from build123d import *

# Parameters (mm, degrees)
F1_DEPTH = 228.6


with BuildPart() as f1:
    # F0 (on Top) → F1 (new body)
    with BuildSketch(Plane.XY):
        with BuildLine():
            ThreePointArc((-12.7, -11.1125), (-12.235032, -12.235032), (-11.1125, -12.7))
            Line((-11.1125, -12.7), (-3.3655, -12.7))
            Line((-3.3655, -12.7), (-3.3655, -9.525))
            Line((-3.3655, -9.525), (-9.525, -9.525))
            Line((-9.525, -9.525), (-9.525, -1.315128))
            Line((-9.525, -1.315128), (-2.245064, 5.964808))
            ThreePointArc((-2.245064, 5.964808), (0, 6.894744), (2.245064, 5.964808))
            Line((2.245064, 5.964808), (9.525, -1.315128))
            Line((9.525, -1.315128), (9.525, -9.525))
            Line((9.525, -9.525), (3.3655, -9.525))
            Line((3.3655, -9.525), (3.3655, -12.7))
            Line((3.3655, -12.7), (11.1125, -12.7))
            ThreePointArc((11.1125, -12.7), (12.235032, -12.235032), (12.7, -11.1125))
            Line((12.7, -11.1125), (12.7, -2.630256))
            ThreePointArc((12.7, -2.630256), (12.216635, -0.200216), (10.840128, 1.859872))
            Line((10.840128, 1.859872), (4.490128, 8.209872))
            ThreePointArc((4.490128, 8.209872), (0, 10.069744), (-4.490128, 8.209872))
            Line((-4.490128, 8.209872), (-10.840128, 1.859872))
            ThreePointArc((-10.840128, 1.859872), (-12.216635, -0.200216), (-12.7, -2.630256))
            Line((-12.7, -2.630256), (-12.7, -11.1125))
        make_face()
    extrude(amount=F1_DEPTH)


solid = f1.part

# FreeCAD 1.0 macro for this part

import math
import FreeCAD as App
import Part
import Sketcher
Q = App.Units.Quantity

doc = App.newDocument("Part")
body = doc.addObject("PartDesign::Body", "Body")

# Sketch on XY plane
sketch1 = body.newObject("Sketcher::SketchObject", "Sketch")
sketch1.AttachmentSupport = (doc.getObject("XY_Plane"), [""])
sketch1.MapMode = "FlatFace"
sketch1.addGeometry(Part.ArcOfCircle(Part.Circle(App.Vector(-11.1, -11.1, 0), App.Vector(0, 0, 1), 1.6), math.radians(-180), math.radians(-90)), False)
sketch1.addGeometry(Part.LineSegment(App.Vector(-11.1, -12.7, 0), App.Vector(-3.4, -12.7, 0)), False)
sketch1.addGeometry(Part.LineSegment(App.Vector(-3.4, -12.7, 0), App.Vector(-3.4, -9.5, 0)), False)
sketch1.addGeometry(Part.LineSegment(App.Vector(-3.4, -9.5, 0), App.Vector(-9.5, -9.5, 0)), False)
sketch1.addGeometry(Part.LineSegment(App.Vector(-9.5, -9.5, 0), App.Vector(-9.5, -1.3, 0)), False)
sketch1.addGeometry(Part.LineSegment(App.Vector(-9.5, -1.3, 0), App.Vector(-2.2, 6, 0)), False)
sketch1.addGeometry(Part.ArcOfCircle(Part.Circle(App.Vector(0, 3.7, 0), App.Vector(0, 0, 1), 3.2), math.radians(45), math.radians(135)), False)
sketch1.addGeometry(Part.LineSegment(App.Vector(2.2, 6, 0), App.Vector(9.5, -1.3, 0)), False)
sketch1.addGeometry(Part.LineSegment(App.Vector(9.5, -1.3, 0), App.Vector(9.5, -9.5, 0)), False)
sketch1.addGeometry(Part.LineSegment(App.Vector(9.5, -9.5, 0), App.Vector(3.4, -9.5, 0)), False)
sketch1.addGeometry(Part.LineSegment(App.Vector(3.4, -9.5, 0), App.Vector(3.4, -12.7, 0)), False)
sketch1.addGeometry(Part.LineSegment(App.Vector(3.4, -12.7, 0), App.Vector(11.1, -12.7, 0)), False)
sketch1.addGeometry(Part.ArcOfCircle(Part.Circle(App.Vector(11.1, -11.1, 0), App.Vector(0, 0, 1), 1.6), math.radians(-90), math.radians(0)), False)
sketch1.addGeometry(Part.LineSegment(App.Vector(12.7, -11.1, 0), App.Vector(12.7, -2.6, 0)), False)
sketch1.addGeometry(Part.ArcOfCircle(Part.Circle(App.Vector(6.4, -2.6, 0), App.Vector(0, 0, 1), 6.3), math.radians(0), math.radians(45)), False)
sketch1.addGeometry(Part.LineSegment(App.Vector(10.8, 1.9, 0), App.Vector(4.5, 8.2, 0)), False)
sketch1.addGeometry(Part.ArcOfCircle(Part.Circle(App.Vector(0, 3.7, 0), App.Vector(0, 0, 1), 6.3), math.radians(45), math.radians(135)), False)
sketch1.addGeometry(Part.LineSegment(App.Vector(-4.5, 8.2, 0), App.Vector(-10.8, 1.9, 0)), False)
sketch1.addGeometry(Part.ArcOfCircle(Part.Circle(App.Vector(-6.4, -2.6, 0), App.Vector(0, 0, 1), 6.3), math.radians(135), math.radians(180)), False)
sketch1.addGeometry(Part.LineSegment(App.Vector(-12.7, -2.6, 0), App.Vector(-12.7, -11.1, 0)), False)
sketch1.addConstraint(Sketcher.Constraint("Tangent", 0, 2, 1, 1))
sketch1.addConstraint(Sketcher.Constraint("Coincident", 1, 2, 2, 1))
sketch1.addConstraint(Sketcher.Constraint("Coincident", 2, 2, 3, 1))
sketch1.addConstraint(Sketcher.Constraint("Coincident", 3, 2, 4, 1))
sketch1.addConstraint(Sketcher.Constraint("Coincident", 4, 2, 5, 1))
sketch1.addConstraint(Sketcher.Constraint("Tangent", 5, 2, 6, 2))
sketch1.addConstraint(Sketcher.Constraint("Tangent", 6, 1, 7, 1))
sketch1.addConstraint(Sketcher.Constraint("Coincident", 7, 2, 8, 1))
sketch1.addConstraint(Sketcher.Constraint("Coincident", 8, 2, 9, 1))
sketch1.addConstraint(Sketcher.Constraint("Coincident", 9, 2, 10, 1))
sketch1.addConstraint(Sketcher.Constraint("Coincident", 10, 2, 11, 1))
sketch1.addConstraint(Sketcher.Constraint("Tangent", 11, 2, 12, 1))
sketch1.addConstraint(Sketcher.Constraint("Tangent", 12, 2, 13, 1))
sketch1.addConstraint(Sketcher.Constraint("Tangent", 13, 2, 14, 1))
sketch1.addConstraint(Sketcher.Constraint("Tangent", 14, 2, 15, 1))
sketch1.addConstraint(Sketcher.Constraint("Tangent", 15, 2, 16, 1))
sketch1.addConstraint(Sketcher.Constraint("Tangent", 16, 2, 17, 1))
sketch1.addConstraint(Sketcher.Constraint("Tangent", 17, 2, 18, 1))
sketch1.addConstraint(Sketcher.Constraint("Tangent", 18, 2, 19, 1))
sketch1.addConstraint(Sketcher.Constraint("Tangent", 19, 2, 0, 1))
sketch1.addConstraint(Sketcher.Constraint("Horizontal", 1))
sketch1.addConstraint(Sketcher.Constraint("Vertical", 2))
sketch1.addConstraint(Sketcher.Constraint("Horizontal", 3))
sketch1.addConstraint(Sketcher.Constraint("Vertical", 4))
sketch1.addConstraint(Sketcher.Constraint("Vertical", 8))
sketch1.addConstraint(Sketcher.Constraint("Horizontal", 9))
sketch1.addConstraint(Sketcher.Constraint("Vertical", 10))
sketch1.addConstraint(Sketcher.Constraint("Horizontal", 11))
sketch1.addConstraint(Sketcher.Constraint("Vertical", 13))
sketch1.addConstraint(Sketcher.Constraint("Vertical", 19))
sketch1.addConstraint(Sketcher.Constraint("Coincident", 16, 3, 6, 3))
sketch1.addConstraint(Sketcher.Constraint("Equal", 0, 12))
sketch1.addConstraint(Sketcher.Constraint("Equal", 14, 16))
sketch1.addConstraint(Sketcher.Constraint("Equal", 16, 18))
sketch1.addConstraint(Sketcher.Constraint("Symmetric", 0, 3, 12, 3, -2))
sketch1.addConstraint(Sketcher.Constraint("Symmetric", 5, 2, 6, 1, -2))
sketch1.addConstraint(Sketcher.Constraint("Symmetric", 3, 2, 8, 2, -2))
sketch1.addConstraint(Sketcher.Constraint("Perpendicular", 5, 7))
sketch1.addConstraint(Sketcher.Constraint("Parallel", 7, 15))
sketch1.addConstraint(Sketcher.Constraint("Perpendicular", 15, 17))
sketch1.addConstraint(Sketcher.Constraint("Equal", 3, 9))
sketch1.addConstraint(Sketcher.Constraint("Radius", 14, Q("0.25 in")))
sketch1.addConstraint(Sketcher.Constraint("Radius", 0, Q("0.0625 in")))
sketch1.addConstraint(Sketcher.Constraint("Radius", 6, Q("0.125 in")))
sketch1.addConstraint(Sketcher.Constraint("DistanceY", 0, 2, -1, 1, Q("0.5 in")))
sketch1.addConstraint(Sketcher.Constraint("DistanceX", -1, 1, 12, 2, Q("0.5 in")))
sketch1.addConstraint(Sketcher.Constraint("DistanceX", 1, 1, 1, 2, Q("0.305 in")))
sketch1.addConstraint(Sketcher.Constraint("DistanceY", 2, 1, 2, 2, Q("0.125 in")))
sketch1.addConstraint(Sketcher.Constraint("DistanceX", 3, 2, 3, 1, Q("0.2425 in")))
sketch1.addConstraint(Sketcher.Constraint("DistanceY", 4, 1, 4, 2, 8.209872))
pad1 = body.newObject("PartDesign::Pad", "Pad")
pad1.Profile = sketch1
pad1.Length = Q("9 in")

doc.recompute()
